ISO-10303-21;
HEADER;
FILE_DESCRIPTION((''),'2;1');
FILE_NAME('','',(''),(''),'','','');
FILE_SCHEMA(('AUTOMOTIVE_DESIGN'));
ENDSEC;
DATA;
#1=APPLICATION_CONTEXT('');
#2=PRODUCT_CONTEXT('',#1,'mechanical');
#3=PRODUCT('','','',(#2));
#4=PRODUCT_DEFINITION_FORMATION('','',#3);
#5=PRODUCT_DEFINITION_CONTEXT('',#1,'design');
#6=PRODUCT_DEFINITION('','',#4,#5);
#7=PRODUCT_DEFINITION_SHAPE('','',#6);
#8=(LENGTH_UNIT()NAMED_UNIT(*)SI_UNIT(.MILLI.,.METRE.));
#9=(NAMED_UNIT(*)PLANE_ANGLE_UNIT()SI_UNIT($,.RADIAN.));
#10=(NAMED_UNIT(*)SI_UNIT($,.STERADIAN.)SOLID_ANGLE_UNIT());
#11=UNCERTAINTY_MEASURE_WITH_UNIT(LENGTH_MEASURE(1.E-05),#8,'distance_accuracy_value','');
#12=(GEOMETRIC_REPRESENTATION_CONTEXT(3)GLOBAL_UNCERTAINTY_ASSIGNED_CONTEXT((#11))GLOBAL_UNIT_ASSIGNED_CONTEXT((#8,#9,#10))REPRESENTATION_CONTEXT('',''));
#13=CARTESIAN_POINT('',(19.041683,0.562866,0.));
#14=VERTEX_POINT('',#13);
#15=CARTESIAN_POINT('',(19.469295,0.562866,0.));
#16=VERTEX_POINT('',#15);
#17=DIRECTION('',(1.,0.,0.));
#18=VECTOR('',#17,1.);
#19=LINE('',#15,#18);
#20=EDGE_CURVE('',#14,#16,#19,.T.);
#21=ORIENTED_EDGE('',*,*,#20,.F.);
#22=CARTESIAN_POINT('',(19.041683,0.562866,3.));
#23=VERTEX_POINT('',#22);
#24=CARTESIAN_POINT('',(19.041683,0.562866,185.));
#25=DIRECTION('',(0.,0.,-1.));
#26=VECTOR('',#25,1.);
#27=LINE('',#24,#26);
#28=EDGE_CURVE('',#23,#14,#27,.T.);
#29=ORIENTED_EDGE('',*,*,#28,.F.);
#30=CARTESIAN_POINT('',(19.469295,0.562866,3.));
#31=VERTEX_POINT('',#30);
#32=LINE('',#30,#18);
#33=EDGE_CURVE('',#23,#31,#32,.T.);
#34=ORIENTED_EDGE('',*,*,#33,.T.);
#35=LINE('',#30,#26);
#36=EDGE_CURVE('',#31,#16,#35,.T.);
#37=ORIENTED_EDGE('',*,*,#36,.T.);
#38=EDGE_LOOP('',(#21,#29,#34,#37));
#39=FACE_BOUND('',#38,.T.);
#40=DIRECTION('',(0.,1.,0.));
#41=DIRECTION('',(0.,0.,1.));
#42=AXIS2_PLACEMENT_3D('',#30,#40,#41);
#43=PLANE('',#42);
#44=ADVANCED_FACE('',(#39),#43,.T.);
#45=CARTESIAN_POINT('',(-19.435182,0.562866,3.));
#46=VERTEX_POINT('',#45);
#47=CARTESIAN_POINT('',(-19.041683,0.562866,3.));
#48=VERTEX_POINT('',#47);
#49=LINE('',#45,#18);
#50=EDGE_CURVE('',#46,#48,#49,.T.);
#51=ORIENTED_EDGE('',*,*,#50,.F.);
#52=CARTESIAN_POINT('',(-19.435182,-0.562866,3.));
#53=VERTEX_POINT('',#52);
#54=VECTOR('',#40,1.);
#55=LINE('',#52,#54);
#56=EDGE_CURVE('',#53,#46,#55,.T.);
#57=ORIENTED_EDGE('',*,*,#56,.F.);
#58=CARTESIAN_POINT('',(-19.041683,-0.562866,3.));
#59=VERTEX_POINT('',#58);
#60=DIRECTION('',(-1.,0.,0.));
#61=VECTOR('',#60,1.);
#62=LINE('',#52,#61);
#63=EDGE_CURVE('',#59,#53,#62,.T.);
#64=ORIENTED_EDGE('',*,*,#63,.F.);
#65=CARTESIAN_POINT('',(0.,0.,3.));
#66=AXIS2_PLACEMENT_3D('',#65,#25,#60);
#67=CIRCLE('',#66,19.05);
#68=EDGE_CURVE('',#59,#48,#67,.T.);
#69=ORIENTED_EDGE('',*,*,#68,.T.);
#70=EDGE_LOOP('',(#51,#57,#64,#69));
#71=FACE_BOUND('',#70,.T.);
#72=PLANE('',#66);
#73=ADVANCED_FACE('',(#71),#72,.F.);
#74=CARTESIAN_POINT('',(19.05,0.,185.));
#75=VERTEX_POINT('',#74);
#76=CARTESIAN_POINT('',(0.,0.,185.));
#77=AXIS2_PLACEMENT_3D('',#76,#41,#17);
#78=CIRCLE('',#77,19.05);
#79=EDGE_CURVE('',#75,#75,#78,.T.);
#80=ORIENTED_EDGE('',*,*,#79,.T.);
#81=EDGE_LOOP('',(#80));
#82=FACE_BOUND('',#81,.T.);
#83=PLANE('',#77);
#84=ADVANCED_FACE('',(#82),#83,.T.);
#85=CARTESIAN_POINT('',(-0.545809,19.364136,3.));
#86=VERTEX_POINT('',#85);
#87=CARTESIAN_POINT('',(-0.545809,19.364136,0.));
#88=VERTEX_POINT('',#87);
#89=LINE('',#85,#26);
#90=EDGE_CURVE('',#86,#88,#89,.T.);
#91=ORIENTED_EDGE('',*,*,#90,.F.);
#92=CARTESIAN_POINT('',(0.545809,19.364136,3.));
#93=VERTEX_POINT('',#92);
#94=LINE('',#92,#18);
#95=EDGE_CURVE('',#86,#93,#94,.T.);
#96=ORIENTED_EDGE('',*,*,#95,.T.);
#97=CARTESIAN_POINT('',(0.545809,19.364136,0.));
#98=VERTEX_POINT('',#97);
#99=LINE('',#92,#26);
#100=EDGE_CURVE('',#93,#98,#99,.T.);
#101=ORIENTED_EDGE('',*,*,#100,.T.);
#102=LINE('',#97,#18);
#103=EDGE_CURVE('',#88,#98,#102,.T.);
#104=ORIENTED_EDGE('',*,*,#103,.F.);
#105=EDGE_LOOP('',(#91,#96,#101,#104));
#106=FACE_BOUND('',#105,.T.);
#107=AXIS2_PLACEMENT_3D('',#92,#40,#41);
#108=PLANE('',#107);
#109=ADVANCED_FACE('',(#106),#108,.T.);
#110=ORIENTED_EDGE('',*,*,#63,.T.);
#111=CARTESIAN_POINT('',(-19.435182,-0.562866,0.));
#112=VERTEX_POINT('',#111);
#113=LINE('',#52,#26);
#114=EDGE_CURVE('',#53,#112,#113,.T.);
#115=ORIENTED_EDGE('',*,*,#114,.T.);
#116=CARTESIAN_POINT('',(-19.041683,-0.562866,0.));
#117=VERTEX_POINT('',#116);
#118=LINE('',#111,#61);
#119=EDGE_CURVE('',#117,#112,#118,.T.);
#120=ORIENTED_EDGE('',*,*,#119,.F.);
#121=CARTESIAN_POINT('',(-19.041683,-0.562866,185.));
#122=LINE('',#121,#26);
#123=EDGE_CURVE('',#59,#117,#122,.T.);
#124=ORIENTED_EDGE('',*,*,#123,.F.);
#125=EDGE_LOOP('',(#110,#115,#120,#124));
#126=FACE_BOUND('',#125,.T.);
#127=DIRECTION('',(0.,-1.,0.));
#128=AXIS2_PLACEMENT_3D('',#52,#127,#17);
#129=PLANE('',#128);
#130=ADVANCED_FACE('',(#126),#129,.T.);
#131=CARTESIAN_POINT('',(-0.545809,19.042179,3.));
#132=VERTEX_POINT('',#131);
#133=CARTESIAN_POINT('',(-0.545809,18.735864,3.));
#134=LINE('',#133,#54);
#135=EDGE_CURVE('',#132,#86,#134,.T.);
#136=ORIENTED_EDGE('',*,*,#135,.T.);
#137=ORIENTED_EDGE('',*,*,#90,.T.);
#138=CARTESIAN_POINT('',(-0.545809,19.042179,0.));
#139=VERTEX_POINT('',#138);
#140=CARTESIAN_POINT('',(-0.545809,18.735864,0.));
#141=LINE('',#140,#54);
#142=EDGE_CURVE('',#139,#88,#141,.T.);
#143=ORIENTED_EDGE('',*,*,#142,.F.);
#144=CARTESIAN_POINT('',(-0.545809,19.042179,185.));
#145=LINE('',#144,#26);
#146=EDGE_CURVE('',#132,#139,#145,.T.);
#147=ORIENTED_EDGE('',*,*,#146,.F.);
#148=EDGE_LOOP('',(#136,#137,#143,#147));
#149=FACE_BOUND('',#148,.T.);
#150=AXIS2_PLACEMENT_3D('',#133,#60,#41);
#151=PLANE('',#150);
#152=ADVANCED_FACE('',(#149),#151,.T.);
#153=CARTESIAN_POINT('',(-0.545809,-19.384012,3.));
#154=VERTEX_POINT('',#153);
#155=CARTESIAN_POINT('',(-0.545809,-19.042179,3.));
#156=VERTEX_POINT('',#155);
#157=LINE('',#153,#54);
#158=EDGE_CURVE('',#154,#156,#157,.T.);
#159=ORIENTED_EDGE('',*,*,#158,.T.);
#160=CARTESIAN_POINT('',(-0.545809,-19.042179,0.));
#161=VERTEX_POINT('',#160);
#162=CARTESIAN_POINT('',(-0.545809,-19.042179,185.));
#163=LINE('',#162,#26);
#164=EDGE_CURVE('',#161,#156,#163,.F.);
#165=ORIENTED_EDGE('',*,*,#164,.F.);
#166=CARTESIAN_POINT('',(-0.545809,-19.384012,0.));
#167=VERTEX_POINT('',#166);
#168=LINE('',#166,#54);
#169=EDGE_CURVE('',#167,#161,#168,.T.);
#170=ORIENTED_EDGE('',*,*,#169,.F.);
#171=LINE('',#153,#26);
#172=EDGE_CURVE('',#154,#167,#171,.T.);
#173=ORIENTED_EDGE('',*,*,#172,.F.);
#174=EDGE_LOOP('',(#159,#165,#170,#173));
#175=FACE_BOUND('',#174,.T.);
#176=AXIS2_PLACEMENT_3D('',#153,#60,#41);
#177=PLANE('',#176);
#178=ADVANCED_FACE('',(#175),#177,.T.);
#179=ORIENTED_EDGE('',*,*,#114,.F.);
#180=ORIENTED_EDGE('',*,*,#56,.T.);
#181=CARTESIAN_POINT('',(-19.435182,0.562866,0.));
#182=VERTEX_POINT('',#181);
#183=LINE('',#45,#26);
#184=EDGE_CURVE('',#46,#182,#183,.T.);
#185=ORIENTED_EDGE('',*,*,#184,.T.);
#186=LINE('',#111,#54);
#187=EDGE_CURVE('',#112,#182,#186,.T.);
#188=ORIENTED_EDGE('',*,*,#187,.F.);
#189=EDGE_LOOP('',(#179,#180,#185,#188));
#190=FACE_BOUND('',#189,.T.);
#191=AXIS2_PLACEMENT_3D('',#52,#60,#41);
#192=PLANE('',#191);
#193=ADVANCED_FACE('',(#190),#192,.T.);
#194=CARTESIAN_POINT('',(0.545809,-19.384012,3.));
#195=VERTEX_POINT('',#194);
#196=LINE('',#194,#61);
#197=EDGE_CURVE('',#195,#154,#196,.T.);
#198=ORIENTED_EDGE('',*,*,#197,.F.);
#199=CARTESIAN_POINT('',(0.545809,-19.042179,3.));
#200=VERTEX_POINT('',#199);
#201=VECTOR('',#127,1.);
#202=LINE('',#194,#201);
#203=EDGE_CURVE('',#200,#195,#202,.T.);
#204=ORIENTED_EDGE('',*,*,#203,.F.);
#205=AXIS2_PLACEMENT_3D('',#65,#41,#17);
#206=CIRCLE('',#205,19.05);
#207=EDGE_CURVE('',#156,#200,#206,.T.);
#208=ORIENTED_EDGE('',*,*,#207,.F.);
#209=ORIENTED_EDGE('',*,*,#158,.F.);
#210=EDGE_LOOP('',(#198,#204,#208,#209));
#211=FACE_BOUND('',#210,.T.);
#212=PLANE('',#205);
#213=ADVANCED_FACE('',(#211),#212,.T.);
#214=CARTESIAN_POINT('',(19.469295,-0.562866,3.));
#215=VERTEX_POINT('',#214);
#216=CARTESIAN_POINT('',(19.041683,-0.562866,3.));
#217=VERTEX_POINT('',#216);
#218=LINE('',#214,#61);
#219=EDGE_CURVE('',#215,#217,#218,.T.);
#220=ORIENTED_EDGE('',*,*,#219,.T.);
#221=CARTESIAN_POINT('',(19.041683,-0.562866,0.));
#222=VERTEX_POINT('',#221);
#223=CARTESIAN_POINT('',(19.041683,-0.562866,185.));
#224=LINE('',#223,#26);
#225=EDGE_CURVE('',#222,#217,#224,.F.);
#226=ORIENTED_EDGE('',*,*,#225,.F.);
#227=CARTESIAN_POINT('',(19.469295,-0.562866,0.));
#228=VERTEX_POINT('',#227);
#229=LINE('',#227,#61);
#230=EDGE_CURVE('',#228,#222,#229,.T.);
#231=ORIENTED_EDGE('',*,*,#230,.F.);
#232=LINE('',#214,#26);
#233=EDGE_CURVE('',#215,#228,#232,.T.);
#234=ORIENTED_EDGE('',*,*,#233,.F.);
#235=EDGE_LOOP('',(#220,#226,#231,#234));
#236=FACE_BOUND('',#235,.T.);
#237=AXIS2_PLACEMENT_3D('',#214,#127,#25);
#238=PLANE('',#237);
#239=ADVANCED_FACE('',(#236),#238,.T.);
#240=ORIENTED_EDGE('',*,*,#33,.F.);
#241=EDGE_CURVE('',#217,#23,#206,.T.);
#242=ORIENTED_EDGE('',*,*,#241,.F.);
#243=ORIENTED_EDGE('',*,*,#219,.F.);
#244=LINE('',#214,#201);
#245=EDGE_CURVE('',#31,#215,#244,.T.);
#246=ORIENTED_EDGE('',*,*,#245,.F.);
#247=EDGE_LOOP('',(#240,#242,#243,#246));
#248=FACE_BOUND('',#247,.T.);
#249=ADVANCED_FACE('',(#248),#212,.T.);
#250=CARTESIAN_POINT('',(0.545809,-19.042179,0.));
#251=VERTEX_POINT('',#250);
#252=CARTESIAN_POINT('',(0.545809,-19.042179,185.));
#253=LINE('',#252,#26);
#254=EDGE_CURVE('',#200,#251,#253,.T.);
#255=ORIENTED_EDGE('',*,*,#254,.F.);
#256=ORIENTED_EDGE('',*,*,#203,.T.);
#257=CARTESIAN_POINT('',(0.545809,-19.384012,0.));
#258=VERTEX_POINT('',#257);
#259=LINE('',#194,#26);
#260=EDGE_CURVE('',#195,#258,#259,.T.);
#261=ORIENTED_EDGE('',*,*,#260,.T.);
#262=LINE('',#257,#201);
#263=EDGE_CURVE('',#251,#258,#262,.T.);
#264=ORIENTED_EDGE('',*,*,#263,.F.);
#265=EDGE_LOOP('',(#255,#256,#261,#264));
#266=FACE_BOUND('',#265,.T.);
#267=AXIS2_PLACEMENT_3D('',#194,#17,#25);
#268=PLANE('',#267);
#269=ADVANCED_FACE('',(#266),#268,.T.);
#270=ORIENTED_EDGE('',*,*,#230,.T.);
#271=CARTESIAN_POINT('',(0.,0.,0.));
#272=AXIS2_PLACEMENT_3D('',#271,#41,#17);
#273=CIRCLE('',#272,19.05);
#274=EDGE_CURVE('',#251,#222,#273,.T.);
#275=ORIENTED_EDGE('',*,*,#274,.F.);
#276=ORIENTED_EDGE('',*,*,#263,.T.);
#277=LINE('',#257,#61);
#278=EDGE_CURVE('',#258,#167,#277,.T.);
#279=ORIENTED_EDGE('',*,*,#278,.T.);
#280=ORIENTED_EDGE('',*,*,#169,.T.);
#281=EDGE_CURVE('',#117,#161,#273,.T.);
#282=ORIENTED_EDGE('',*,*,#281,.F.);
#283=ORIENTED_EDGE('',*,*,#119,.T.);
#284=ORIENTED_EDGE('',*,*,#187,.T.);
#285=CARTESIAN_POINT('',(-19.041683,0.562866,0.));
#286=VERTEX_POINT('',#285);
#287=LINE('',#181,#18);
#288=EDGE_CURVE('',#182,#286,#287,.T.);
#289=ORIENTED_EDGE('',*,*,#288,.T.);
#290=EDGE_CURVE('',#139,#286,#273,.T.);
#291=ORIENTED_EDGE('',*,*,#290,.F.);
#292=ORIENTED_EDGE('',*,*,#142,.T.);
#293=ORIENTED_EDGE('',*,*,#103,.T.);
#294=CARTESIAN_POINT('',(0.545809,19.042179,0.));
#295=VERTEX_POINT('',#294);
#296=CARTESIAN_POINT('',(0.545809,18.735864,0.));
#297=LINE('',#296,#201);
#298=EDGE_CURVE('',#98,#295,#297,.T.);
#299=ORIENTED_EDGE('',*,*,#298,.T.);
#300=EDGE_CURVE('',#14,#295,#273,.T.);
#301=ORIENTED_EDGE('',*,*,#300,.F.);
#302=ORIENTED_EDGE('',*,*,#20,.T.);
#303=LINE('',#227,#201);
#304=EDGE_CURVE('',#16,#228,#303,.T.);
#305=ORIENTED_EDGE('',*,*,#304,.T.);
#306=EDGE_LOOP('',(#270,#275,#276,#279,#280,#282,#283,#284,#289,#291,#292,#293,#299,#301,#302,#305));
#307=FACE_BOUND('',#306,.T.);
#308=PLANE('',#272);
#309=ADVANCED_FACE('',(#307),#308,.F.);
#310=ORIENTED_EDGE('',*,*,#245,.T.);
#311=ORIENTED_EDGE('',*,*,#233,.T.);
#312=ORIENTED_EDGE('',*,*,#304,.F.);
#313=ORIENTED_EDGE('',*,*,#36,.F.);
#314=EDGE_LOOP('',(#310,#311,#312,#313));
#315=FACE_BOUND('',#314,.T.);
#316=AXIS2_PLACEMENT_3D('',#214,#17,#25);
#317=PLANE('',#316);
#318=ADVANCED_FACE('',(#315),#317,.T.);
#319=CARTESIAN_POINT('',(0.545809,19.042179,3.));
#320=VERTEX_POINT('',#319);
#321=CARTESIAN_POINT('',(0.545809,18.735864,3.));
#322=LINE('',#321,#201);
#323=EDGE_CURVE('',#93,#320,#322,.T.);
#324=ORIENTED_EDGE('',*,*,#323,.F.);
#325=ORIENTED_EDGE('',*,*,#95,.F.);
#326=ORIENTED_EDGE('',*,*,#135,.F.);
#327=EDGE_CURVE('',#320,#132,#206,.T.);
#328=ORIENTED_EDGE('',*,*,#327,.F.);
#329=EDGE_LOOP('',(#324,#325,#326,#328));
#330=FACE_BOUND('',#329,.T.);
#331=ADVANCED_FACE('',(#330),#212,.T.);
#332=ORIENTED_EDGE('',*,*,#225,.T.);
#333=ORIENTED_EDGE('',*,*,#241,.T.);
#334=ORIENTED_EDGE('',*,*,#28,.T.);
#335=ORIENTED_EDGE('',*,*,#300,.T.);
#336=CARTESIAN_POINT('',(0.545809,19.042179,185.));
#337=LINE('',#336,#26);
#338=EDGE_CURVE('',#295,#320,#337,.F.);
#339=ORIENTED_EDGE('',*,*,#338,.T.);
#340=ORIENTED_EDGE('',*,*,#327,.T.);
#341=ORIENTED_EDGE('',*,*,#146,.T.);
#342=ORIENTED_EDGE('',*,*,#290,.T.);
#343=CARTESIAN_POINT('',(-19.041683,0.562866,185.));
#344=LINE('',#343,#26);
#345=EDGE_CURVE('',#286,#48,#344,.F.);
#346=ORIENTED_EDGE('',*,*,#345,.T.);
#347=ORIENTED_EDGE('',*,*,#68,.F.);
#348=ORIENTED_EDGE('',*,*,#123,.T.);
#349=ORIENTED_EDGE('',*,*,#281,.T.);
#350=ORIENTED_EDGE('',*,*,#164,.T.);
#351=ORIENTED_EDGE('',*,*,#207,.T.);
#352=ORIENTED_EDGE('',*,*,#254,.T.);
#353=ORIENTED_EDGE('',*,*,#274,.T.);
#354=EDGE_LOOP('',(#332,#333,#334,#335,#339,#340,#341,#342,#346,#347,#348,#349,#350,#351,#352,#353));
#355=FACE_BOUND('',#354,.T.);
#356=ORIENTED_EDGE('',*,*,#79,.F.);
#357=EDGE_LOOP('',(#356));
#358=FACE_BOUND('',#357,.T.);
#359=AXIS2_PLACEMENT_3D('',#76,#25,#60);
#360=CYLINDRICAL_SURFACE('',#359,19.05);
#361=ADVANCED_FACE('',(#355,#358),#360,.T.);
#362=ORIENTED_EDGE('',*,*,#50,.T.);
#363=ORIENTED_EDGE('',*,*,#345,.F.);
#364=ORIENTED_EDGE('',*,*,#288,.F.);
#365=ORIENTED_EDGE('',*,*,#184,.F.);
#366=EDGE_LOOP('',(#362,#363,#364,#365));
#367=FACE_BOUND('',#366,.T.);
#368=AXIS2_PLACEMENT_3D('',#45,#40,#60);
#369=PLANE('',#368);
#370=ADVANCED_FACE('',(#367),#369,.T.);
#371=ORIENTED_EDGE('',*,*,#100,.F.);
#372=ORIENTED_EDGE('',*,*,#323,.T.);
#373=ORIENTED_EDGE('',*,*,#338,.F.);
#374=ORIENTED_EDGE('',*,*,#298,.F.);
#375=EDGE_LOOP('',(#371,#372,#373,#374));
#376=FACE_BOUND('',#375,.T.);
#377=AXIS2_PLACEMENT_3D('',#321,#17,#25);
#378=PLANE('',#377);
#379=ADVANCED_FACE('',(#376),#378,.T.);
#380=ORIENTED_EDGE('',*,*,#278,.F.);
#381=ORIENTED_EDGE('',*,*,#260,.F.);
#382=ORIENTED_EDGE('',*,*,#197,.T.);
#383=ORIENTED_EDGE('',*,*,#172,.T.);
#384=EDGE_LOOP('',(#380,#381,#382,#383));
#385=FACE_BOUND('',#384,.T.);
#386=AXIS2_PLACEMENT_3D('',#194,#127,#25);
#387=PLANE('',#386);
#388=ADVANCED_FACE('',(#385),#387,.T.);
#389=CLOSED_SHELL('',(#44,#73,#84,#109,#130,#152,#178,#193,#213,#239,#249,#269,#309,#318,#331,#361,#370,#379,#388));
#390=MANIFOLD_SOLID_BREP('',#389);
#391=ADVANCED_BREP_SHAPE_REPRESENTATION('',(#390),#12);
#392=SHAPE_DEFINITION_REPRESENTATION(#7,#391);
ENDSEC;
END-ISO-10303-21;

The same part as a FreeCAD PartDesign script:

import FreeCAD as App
import Part
import Sketcher
Q = App.Units.Quantity


def add_polygon(sketch, points):
    """Adds a closed chain of lines whose ends are joined by coincident constraints."""
    first, n = sketch.GeometryCount, len(points)
    for a, b in zip(points, points[1:] + points[:1]):
        sketch.addGeometry(Part.LineSegment(App.Vector(*a, 0), App.Vector(*b, 0)), False)
    for i in range(n):
        sketch.addConstraint(Sketcher.Constraint("Coincident", first + i, 2, first + (i + 1) % n, 1))

doc = App.newDocument("Part")
body = doc.addObject("PartDesign::Body", "Body")

# Sketch on XY plane
sketch1 = doc.addObject("Sketcher::SketchObject", "Sketch")
body.addObject(sketch1)
sketch1.AttachmentSupport = (doc.XY_Plane, [""])
sketch1.MapMode = "FlatFace"
sketch1.addGeometry(Part.Circle(App.Vector(0, 0, 0), App.Vector(0, 0, 1), 19), False)
sketch1.addConstraint([
    Sketcher.Constraint("Coincident", 0, 3, -1, 1),
    Sketcher.Constraint("Diameter", 0, Q("38.1 mm")),
])
pad1 = doc.addObject("PartDesign::Pad", "Pad")
body.addObject(pad1)
pad1.Profile = sketch1
pad1.Length = 185

# Sketch on XY plane
sketch2 = doc.addObject("Sketcher::SketchObject", "Sketch001")
body.addObject(sketch2)
sketch2.AttachmentSupport = (doc.XY_Plane, [""])
sketch2.MapMode = "FlatFace"
add_polygon(sketch2, [(19.5, 0.6), (19.5, -0.6), (18.6, -0.6), (18.6, 0.6)])  # lines 0-3
add_polygon(sketch2, [(-18.7, 0.6), (-18.7, -0.6), (-19.4, -0.6), (-19.4, 0.6)])  # lines 4-7
add_polygon(sketch2, [(0.5, 19.4), (0.5, 18.7), (-0.5, 18.7), (-0.5, 19.4)])  # lines 8-11
add_polygon(sketch2, [(0.5, -18.7), (0.5, -19.4), (-0.5, -19.4), (-0.5, -18.7)])  # lines 12-15
sketch2.addConstraint([
    Sketcher.Constraint("Vertical", 0),
    Sketcher.Constraint("Horizontal", 1),
    Sketcher.Constraint("Vertical", 2),
    Sketcher.Constraint("Horizontal", 3),
    Sketcher.Constraint("Vertical", 4),
    Sketcher.Constraint("Horizontal", 5),
    Sketcher.Constraint("Vertical", 6),
    Sketcher.Constraint("Horizontal", 7),
    Sketcher.Constraint("Vertical", 8),
    Sketcher.Constraint("Horizontal", 9),
    Sketcher.Constraint("Vertical", 10),
    Sketcher.Constraint("Horizontal", 11),
    Sketcher.Constraint("Vertical", 12),
    Sketcher.Constraint("Horizontal", 13),
    Sketcher.Constraint("Vertical", 14),
    Sketcher.Constraint("Horizontal", 15),
    Sketcher.Constraint("Horizontal", 1, 2, 4, 2),
    Sketcher.Constraint("Horizontal", 3, 2, 6, 2),
    Sketcher.Constraint("Vertical", 11, 2, 12, 2),
    Sketcher.Constraint("Vertical", 10, 2, 13, 2),
    Sketcher.Constraint("DistanceY", 2, 2, 8, 2, Q("18.172998 mm")),
    Sketcher.Constraint("DistanceX", 1, 2, 1, 1, Q("0.83859 mm")),
    Sketcher.Constraint("DistanceX", 9, 2, 9, 1, Q("1.091618 mm")),
    Sketcher.Constraint("DistanceY", 0, 2, 0, 1, Q("1.125731 mm")),
    Sketcher.Constraint("DistanceX", 5, 2, 5, 1, Q("0.770364 mm")),
    Sketcher.Constraint("DistanceY", 8, 2, 8, 1, Q("0.628272 mm")),
    Sketcher.Constraint("DistanceY", 12, 2, 12, 1, Q("0.668025 mm")),
    Sketcher.Constraint("DistanceX", 4, 2, -1, 1, Q("18.664818 mm")),
    Sketcher.Constraint("DistanceX", -1, 1, 8, 2, Q("0.545809 mm")),
    Sketcher.Constraint("DistanceX", -1, 1, 0, 2, Q("19.469295 mm")),
    Sketcher.Constraint("DistanceY", 0, 2, -1, 1, Q("0.562866 mm")),
    Sketcher.Constraint("DistanceY", 12, 2, -1, 1, Q("19.384012 mm")),
])
pad2 = doc.addObject("PartDesign::Pad", "Pad001")
body.addObject(pad2)
pad2.Profile = sketch2
pad2.Length = 3

doc.recompute()
